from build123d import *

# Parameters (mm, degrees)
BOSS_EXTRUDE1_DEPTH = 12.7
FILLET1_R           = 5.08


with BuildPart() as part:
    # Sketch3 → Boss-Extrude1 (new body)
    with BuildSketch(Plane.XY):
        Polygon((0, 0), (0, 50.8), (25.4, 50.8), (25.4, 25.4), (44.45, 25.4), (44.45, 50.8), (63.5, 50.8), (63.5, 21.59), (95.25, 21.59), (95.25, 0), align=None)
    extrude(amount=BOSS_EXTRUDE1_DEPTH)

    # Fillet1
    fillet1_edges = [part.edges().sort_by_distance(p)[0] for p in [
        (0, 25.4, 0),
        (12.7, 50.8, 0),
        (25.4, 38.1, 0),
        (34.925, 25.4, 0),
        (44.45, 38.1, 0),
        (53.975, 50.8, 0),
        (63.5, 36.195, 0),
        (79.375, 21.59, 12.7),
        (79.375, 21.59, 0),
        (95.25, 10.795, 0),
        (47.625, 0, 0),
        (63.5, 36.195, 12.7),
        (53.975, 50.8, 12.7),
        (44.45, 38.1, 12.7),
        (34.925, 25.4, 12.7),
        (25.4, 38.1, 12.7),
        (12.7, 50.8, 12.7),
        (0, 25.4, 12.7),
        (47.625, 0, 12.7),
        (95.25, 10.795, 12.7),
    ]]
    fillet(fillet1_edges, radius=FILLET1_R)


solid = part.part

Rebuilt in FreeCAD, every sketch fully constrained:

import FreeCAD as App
import Part
import Sketcher
from FreeCAD import Vector
Q = App.Units.Quantity


def edges_at(feature, points):
    """Names of the edges that pass closest to the given points."""
    edges = feature.Shape.Edges
    near = lambda p: min(range(len(edges)), key=lambda i: edges[i].distToShape(Part.Vertex(*p))[0])
    return sorted({f"Edge{near(p) + 1}" for p in points})

doc = App.newDocument("Part")
body = doc.addObject("PartDesign::Body", "Body")

# Sketch on XY plane
sketch1 = doc.addObject("Sketcher::SketchObject", "Sketch")
body.addObject(sketch1)
sketch1.AttachmentSupport = (doc.XY_Plane, [""])
sketch1.MapMode = "FlatFace"
sketch1.addGeometry([
    Part.LineSegment(Vector(0, 50.8, 0), Vector(0, 0, 0)),  # 0
    Part.LineSegment(Vector(0, 0, 0), Vector(95.25, 0, 0)),  # 1
    Part.LineSegment(Vector(95.25, 0, 0), Vector(95.25, 21.59, 0)),  # 2
    Part.LineSegment(Vector(95.25, 21.59, 0), Vector(63.5, 21.59, 0)),  # 3
    Part.LineSegment(Vector(63.5, 21.59, 0), Vector(63.5, 50.8, 0)),  # 4
    Part.LineSegment(Vector(63.5, 50.8, 0), Vector(44.45, 50.8, 0)),  # 5
    Part.LineSegment(Vector(44.45, 50.8, 0), Vector(44.45, 25.4, 0)),  # 6
    Part.LineSegment(Vector(44.45, 25.4, 0), Vector(25.4, 25.4, 0)),  # 7
    Part.LineSegment(Vector(25.4, 25.4, 0), Vector(25.4, 50.8, 0)),  # 8
    Part.LineSegment(Vector(25.4, 50.8, 0), Vector(0, 50.8, 0)),  # 9
], False)
sketch1.addConstraint([
    Sketcher.Constraint("Coincident", 0, 2, 1, 1),
    Sketcher.Constraint("Coincident", 1, 2, 2, 1),
    Sketcher.Constraint("Coincident", 2, 2, 3, 1),
    Sketcher.Constraint("Coincident", 3, 2, 4, 1),
    Sketcher.Constraint("Coincident", 4, 2, 5, 1),
    Sketcher.Constraint("Coincident", 5, 2, 6, 1),
    Sketcher.Constraint("Coincident", 6, 2, 7, 1),
    Sketcher.Constraint("Coincident", 7, 2, 8, 1),
    Sketcher.Constraint("Coincident", 8, 2, 9, 1),
    Sketcher.Constraint("Coincident", 9, 2, 0, 1),
    Sketcher.Constraint("Vertical", 0),
    Sketcher.Constraint("Horizontal", 1),
    Sketcher.Constraint("Vertical", 2),
    Sketcher.Constraint("Horizontal", 3),
    Sketcher.Constraint("Vertical", 4),
    Sketcher.Constraint("Horizontal", 5),
    Sketcher.Constraint("Vertical", 6),
    Sketcher.Constraint("Horizontal", 7),
    Sketcher.Constraint("Vertical", 8),
    Sketcher.Constraint("Horizontal", 9),
    Sketcher.Constraint("Coincident", 0, 2, -1, 1),
    Sketcher.Constraint("Horizontal", 5, 2, 8, 2),
    Sketcher.Constraint("Equal", 5, 7),
    Sketcher.Constraint("Equal", 9, 6),
    Sketcher.Constraint("DistanceX", 9, 2, 9, 1, Q("1 in")),
    Sketcher.Constraint("DistanceY", 0, 2, 0, 1, Q("2 in")),
    Sketcher.Constraint("DistanceX", 5, 2, 2, 2, Q("2 in")),
    Sketcher.Constraint("DistanceX", 1, 1, 1, 2, Q("3.75 in")),
    Sketcher.Constraint("DistanceY", 2, 1, 2, 2, Q("0.85 in")),
])
pad1 = doc.addObject("PartDesign::Pad", "Pad")
body.addObject(pad1)
pad1.Profile = sketch1
pad1.Length = Q("0.5 in")
doc.recompute()

fillet = doc.addObject("PartDesign::Fillet", "Fillet")
body.addObject(fillet)
fillet.Base = (pad1, edges_at(pad1, [
    (0, 25.4, 0),
    (12.7, 50.8, 0),
    (25.4, 38.1, 0),
    (34.925, 25.4, 0),
    (44.45, 38.1, 0),
    (53.975, 50.8, 0),
    (63.5, 36.195, 0),
    (79.375, 21.59, 12.7),
    (79.375, 21.59, 0),
    (95.25, 10.795, 0),
    (47.625, 0, 0),
    (63.5, 36.195, 12.7),
    (53.975, 50.8, 12.7),
    (44.45, 38.1, 12.7),
    (34.925, 25.4, 12.7),
    (25.4, 38.1, 12.7),
    (12.7, 50.8, 12.7),
    (0, 25.4, 12.7),
    (47.625, 0, 12.7),
    (95.25, 10.795, 12.7),
]))
fillet.Radius = Q("0.2 in")

doc.recompute()
